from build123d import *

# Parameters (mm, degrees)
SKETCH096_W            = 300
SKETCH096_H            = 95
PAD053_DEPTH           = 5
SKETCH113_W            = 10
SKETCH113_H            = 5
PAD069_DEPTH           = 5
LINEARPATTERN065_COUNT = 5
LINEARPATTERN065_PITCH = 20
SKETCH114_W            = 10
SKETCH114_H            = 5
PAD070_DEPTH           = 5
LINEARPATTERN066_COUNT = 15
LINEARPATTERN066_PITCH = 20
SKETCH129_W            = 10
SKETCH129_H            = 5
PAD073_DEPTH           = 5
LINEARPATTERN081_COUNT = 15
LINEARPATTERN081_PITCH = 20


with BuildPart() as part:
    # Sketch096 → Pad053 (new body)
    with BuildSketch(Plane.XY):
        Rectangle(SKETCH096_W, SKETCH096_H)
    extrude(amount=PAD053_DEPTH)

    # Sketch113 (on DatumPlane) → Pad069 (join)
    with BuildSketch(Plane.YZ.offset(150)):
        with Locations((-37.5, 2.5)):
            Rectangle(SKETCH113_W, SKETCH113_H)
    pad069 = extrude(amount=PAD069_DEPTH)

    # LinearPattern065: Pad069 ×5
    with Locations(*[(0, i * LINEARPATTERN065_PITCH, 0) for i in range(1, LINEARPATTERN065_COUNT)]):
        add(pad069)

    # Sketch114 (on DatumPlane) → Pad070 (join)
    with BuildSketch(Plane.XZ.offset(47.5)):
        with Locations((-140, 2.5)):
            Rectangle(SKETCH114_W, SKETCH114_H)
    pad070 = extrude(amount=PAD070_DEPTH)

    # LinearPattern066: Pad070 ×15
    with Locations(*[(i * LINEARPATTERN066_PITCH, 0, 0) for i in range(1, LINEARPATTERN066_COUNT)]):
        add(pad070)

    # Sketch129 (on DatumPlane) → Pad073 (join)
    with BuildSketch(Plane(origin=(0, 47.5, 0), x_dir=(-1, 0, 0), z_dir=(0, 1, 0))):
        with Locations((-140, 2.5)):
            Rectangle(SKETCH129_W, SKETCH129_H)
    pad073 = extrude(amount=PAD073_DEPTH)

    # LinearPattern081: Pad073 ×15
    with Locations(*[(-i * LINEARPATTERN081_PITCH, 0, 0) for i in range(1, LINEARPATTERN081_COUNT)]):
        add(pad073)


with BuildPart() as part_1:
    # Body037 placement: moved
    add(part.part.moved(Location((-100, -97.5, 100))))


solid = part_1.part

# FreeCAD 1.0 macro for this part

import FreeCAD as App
import Part
import Sketcher

V = App.Vector

doc = App.newDocument("Part")
body = doc.addObject("PartDesign::Body", "Body")

sketch1 = body.newObject("Sketcher::SketchObject", "Sketch")
sketch1.AttachmentSupport = (doc.getObject("XY_Plane"), [""])
sketch1.MapMode = "FlatFace"
sketch1.addGeometry([
    Part.LineSegment(V(-150, 48, 0), V(-150, -48, 0)),
    Part.LineSegment(V(-150, -48, 0), V(150, -48, 0)),
    Part.LineSegment(V(150, -48, 0), V(150, 48, 0)),
    Part.LineSegment(V(150, 48, 0), V(-150, 48, 0)),
], False)
sketch1.addConstraint([
    Sketcher.Constraint("Coincident", 0, 2, 1, 1),
    Sketcher.Constraint("Coincident", 1, 2, 2, 1),
    Sketcher.Constraint("Coincident", 2, 2, 3, 1),
    Sketcher.Constraint("Coincident", 3, 2, 0, 1),
    Sketcher.Constraint("Vertical", 0),
    Sketcher.Constraint("Horizontal", 1),
    Sketcher.Constraint("Vertical", 2),
    Sketcher.Constraint("Horizontal", 3),
    Sketcher.Constraint("Symmetric", 0, 2, 2, 2, -1, 1),
    Sketcher.Constraint("DistanceX", 1, 1, 1, 2, 300.0),
    Sketcher.Constraint("DistanceY", 0, 2, 0, 1, 95.0),
])
pad1 = body.newObject("PartDesign::Pad", "Pad")
pad1.Profile = sketch1
pad1.Length = 5

sketch2 = body.newObject("Sketcher::SketchObject", "Sketch001")
sketch2.AttachmentSupport = (doc.getObject("YZ_Plane"), [""])
sketch2.MapMode = "FlatFace"
sketch2.AttachmentOffset = App.Placement(V(0, 0, 150), App.Rotation())
sketch2.addGeometry([
    Part.LineSegment(V(-42, 5, 0), V(-42, 0, 0)),
    Part.LineSegment(V(-42, 0, 0), V(-32, 0, 0)),
    Part.LineSegment(V(-32, 0, 0), V(-32, 5, 0)),
    Part.LineSegment(V(-32, 5, 0), V(-42, 5, 0)),
], False)
sketch2.addConstraint([
    Sketcher.Constraint("Coincident", 0, 2, 1, 1),
    Sketcher.Constraint("Coincident", 1, 2, 2, 1),
    Sketcher.Constraint("Coincident", 2, 2, 3, 1),
    Sketcher.Constraint("Coincident", 3, 2, 0, 1),
    Sketcher.Constraint("Vertical", 0),
    Sketcher.Constraint("Horizontal", 1),
    Sketcher.Constraint("Vertical", 2),
    Sketcher.Constraint("Horizontal", 3),
    Sketcher.Constraint("PointOnObject", 0, 2, -1),
    Sketcher.Constraint("DistanceX", 1, 1, 1, 2, 10.0),
    Sketcher.Constraint("DistanceY", 0, 2, 0, 1, 5.0),
    Sketcher.Constraint("DistanceX", 0, 2, -1, 1, 42.5),
])
pad2 = body.newObject("PartDesign::Pad", "Pad001")
pad2.Profile = sketch2
pad2.Length = 5
doc.recompute()

linearpattern = body.newObject("PartDesign::LinearPattern", "LinearPattern")
linearpattern.Originals = [pad2]
linearpattern.Direction = (doc.getObject("Y_Axis"), [""])
linearpattern.Mode = "offset"
linearpattern.Offset = 20
linearpattern.Occurrences = 5
body.Tip = linearpattern

sketch3 = body.newObject("Sketcher::SketchObject", "Sketch002")
sketch3.AttachmentSupport = (doc.getObject("XZ_Plane"), [""])
sketch3.MapMode = "FlatFace"
sketch3.AttachmentOffset = App.Placement(V(0, 0, 47.5), App.Rotation())
sketch3.addGeometry([
    Part.LineSegment(V(-145, 5, 0), V(-145, 0, 0)),
    Part.LineSegment(V(-145, 0, 0), V(-135, 0, 0)),
    Part.LineSegment(V(-135, 0, 0), V(-135, 5, 0)),
    Part.LineSegment(V(-135, 5, 0), V(-145, 5, 0)),
], False)
sketch3.addConstraint([
    Sketcher.Constraint("Coincident", 0, 2, 1, 1),
    Sketcher.Constraint("Coincident", 1, 2, 2, 1),
    Sketcher.Constraint("Coincident", 2, 2, 3, 1),
    Sketcher.Constraint("Coincident", 3, 2, 0, 1),
    Sketcher.Constraint("Vertical", 0),
    Sketcher.Constraint("Horizontal", 1),
    Sketcher.Constraint("Vertical", 2),
    Sketcher.Constraint("Horizontal", 3),
    Sketcher.Constraint("PointOnObject", 0, 2, -1),
    Sketcher.Constraint("DistanceX", 1, 1, 1, 2, 10.0),
    Sketcher.Constraint("DistanceY", 0, 2, 0, 1, 5.0),
    Sketcher.Constraint("DistanceX", 0, 2, -1, 1, 145.0),
])
pad3 = body.newObject("PartDesign::Pad", "Pad002")
pad3.Profile = sketch3
pad3.Length = 5
doc.recompute()

linearpattern2 = body.newObject("PartDesign::LinearPattern", "LinearPattern001")
linearpattern2.Originals = [pad3]
linearpattern2.Direction = (doc.getObject("X_Axis"), [""])
linearpattern2.Mode = "offset"
linearpattern2.Offset = 20
linearpattern2.Occurrences = 15
body.Tip = linearpattern2

sketch4 = body.newObject("Sketcher::SketchObject", "Sketch003")
sketch4.AttachmentSupport = (doc.getObject("XZ_Plane"), [""])
sketch4.MapMode = "FlatFace"
sketch4.AttachmentOffset = App.Placement(V(0, 0, -47.5), App.Rotation())
sketch4.addGeometry([
    Part.LineSegment(V(145, 5, 0), V(145, 0, 0)),
    Part.LineSegment(V(145, 0, 0), V(135, 0, 0)),
    Part.LineSegment(V(135, 0, 0), V(135, 5, 0)),
    Part.LineSegment(V(135, 5, 0), V(145, 5, 0)),
], False)
sketch4.addConstraint([
    Sketcher.Constraint("Coincident", 0, 2, 1, 1),
    Sketcher.Constraint("Coincident", 1, 2, 2, 1),
    Sketcher.Constraint("Coincident", 2, 2, 3, 1),
    Sketcher.Constraint("Coincident", 3, 2, 0, 1),
    Sketcher.Constraint("Vertical", 0),
    Sketcher.Constraint("Horizontal", 1),
    Sketcher.Constraint("Vertical", 2),
    Sketcher.Constraint("Horizontal", 3),
    Sketcher.Constraint("PointOnObject", 0, 2, -1),
    Sketcher.Constraint("DistanceX", 1, 2, 1, 1, 10.0),
    Sketcher.Constraint("DistanceY", 0, 2, 0, 1, 5.0),
    Sketcher.Constraint("DistanceX", -1, 1, 0, 2, 145.0),
])
pad4 = body.newObject("PartDesign::Pad", "Pad003")
pad4.Profile = sketch4
pad4.Length = 5
pad4.Reversed = True
doc.recompute()

linearpattern3 = body.newObject("PartDesign::LinearPattern", "LinearPattern002")
linearpattern3.Originals = [pad4]
linearpattern3.Direction = (doc.getObject("X_Axis"), [""])
linearpattern3.Mode = "offset"
linearpattern3.Offset = 20
linearpattern3.Occurrences = 15
linearpattern3.Reversed = True
body.Tip = linearpattern3
body2 = doc.addObject("PartDesign::Body", "Body001")
doc.recompute()

body.Placement = App.Placement(V(-100, -97.5, 100), App.Rotation(V(0, 0, 1), 0))
boolean = body2.newObject("PartDesign::Boolean", "Boolean")
boolean.Type = "Fuse"
boolean.addObjects([body])

doc.recompute()
